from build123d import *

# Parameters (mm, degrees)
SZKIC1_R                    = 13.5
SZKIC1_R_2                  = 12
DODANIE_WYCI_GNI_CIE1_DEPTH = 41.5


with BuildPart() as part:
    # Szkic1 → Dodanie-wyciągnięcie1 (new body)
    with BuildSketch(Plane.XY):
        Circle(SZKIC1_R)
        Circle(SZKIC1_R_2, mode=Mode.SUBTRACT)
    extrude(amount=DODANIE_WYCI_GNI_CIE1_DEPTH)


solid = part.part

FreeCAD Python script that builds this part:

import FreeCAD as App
import Part
import Sketcher
from FreeCAD import Vector
Q = App.Units.Quantity

doc = App.newDocument("Part")
body = doc.addObject("PartDesign::Body", "Body")

# Sketch on XY plane
sketch1 = body.newObject("Sketcher::SketchObject", "Sketch")
sketch1.AttachmentSupport = (doc.getObject("XY_Plane"), [""])
sketch1.MapMode = "FlatFace"
sketch1.addGeometry([
    Part.Circle(Vector(0, 0, 0), Vector(0, 0, 1), 14),
    Part.Circle(Vector(0, 0, 0), Vector(0, 0, 1), 12),
], False)
sketch1.addConstraint([
    Sketcher.Constraint("Coincident", 0, 3, -1, 1),
    Sketcher.Constraint("Coincident", 1, 3, -1, 1),
    Sketcher.Constraint("Diameter", 0, Q("27 mm")),
    Sketcher.Constraint("Diameter", 1, Q("24 mm")),
])
pad1 = body.newObject("PartDesign::Pad", "Pad")
pad1.Profile = sketch1
pad1.Length = 41.5

doc.recompute()
